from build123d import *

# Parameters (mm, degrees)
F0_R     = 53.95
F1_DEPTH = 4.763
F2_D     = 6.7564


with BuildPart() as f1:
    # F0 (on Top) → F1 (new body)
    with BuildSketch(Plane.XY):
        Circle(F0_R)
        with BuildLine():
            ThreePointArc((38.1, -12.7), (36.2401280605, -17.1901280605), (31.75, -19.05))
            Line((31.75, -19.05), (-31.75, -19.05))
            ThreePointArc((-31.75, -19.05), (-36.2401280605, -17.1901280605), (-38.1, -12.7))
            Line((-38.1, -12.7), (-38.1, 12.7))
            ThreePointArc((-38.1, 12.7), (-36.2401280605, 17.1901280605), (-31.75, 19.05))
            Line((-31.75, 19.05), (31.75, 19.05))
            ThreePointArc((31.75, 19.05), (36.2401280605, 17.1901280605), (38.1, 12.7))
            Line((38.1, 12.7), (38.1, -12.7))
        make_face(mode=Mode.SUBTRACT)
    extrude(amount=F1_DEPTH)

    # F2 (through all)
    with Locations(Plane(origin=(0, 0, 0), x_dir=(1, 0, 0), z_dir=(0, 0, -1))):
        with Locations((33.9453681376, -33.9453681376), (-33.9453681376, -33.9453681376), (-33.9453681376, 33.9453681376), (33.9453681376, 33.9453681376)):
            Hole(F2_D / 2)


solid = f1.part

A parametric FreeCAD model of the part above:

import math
import FreeCAD as App
import Part
import Sketcher
Q = App.Units.Quantity

doc = App.newDocument("Part")
params = doc.addObject("Spreadsheet::Sheet", "Params")
for row, (alias, value) in enumerate([
    ("sketch1_height", "1 in"),
    ("sketch1_radius", "0.25 in"),
    ("sketch1_width", "2.5 in"),
    ("pad1_length", "4.763 mm"),
    ("sketch2_diameter", "0.266 in"),
    ("hole_diameter", "0.266 in"),
], start=1):
    params.set(f"A{row}", alias)
    params.set(f"B{row}", "=" + value)
    params.setAlias(f"B{row}", alias)

body = doc.addObject("PartDesign::Body", "Body")

# Sketch on XY plane
sketch1 = body.newObject("Sketcher::SketchObject", "Sketch")
sketch1.AttachmentSupport = (doc.getObject("XY_Plane"), [""])
sketch1.MapMode = "FlatFace"
sketch1.addGeometry([
    Part.Circle(App.Vector(0, 0, 0), App.Vector(0, 0, 1), 54),  # 0
    Part.LineSegment(App.Vector(38, 13, 0), App.Vector(38, -13, 0)),  # 1
    Part.ArcOfCircle(Part.Circle(App.Vector(32, -13, 0), App.Vector(0, 0, 1), 6), math.radians(-90), math.radians(0)),  # 2
    Part.LineSegment(App.Vector(32, -19, 0), App.Vector(-32, -19, 0)),  # 3
    Part.ArcOfCircle(Part.Circle(App.Vector(-32, -13, 0), App.Vector(0, 0, 1), 6), math.radians(180), math.radians(270)),  # 4
    Part.LineSegment(App.Vector(-38, -13, 0), App.Vector(-38, 13, 0)),  # 5
    Part.ArcOfCircle(Part.Circle(App.Vector(-32, 13, 0), App.Vector(0, 0, 1), 6), math.radians(90), math.radians(180)),  # 6
    Part.LineSegment(App.Vector(-32, 19, 0), App.Vector(32, 19, 0)),  # 7
    Part.ArcOfCircle(Part.Circle(App.Vector(32, 13, 0), App.Vector(0, 0, 1), 6), math.radians(0), math.radians(90)),  # 8
], False)
sketch1.addConstraint([
    Sketcher.Constraint("Tangent", 1, 2, 2, 2),
    Sketcher.Constraint("Tangent", 2, 1, 3, 1),
    Sketcher.Constraint("Tangent", 3, 2, 4, 2),
    Sketcher.Constraint("Tangent", 4, 1, 5, 1),
    Sketcher.Constraint("Tangent", 5, 2, 6, 2),
    Sketcher.Constraint("Tangent", 6, 1, 7, 1),
    Sketcher.Constraint("Tangent", 7, 2, 8, 2),
    Sketcher.Constraint("Tangent", 8, 1, 1, 1),
    Sketcher.Constraint("Vertical", 1),
    Sketcher.Constraint("Horizontal", 3),
    Sketcher.Constraint("Vertical", 5),
    Sketcher.Constraint("Horizontal", 7),
    Sketcher.Constraint("Coincident", 0, 3, -1, 1),
    Sketcher.Constraint("Equal", 2, 4),
    Sketcher.Constraint("Equal", 4, 6),
    Sketcher.Constraint("Equal", 6, 8),
    Sketcher.Constraint("Symmetric", 2, 3, 6, 3, -1, 1),
    Sketcher.Constraint("DistanceY", 1, 2, 1, 1, Q("1 in")),
    Sketcher.Constraint("Radius", 2, Q("0.25 in")),
    Sketcher.Constraint("DistanceX", 3, 2, 3, 1, Q("2.5 in")),
    Sketcher.Constraint("Diameter", 0, 107.9),
])
sketch1.setExpression("Constraints[17]", "Params.sketch1_height")
sketch1.setExpression("Constraints[18]", "Params.sketch1_radius")
sketch1.setExpression("Constraints[19]", "Params.sketch1_width")
pad1 = body.newObject("PartDesign::Pad", "Pad")
pad1.Profile = sketch1
pad1.setExpression("Length", "Params.pad1_length")

# Sketch on XY plane
sketch2 = body.newObject("Sketcher::SketchObject", "Sketch001")
sketch2.AttachmentSupport = (doc.getObject("XY_Plane"), [""])
sketch2.MapMode = "FlatFace"
sketch2.addGeometry([
    Part.Circle(App.Vector(33.9, 33.9, 0), App.Vector(0, 0, 1), 3.4),
    Part.Circle(App.Vector(-33.9, 33.9, 0), App.Vector(0, 0, 1), 3.4),
    Part.Circle(App.Vector(-33.9, -33.9, 0), App.Vector(0, 0, 1), 3.4),
    Part.Circle(App.Vector(33.9, -33.9, 0), App.Vector(0, 0, 1), 3.4),
], False)
sketch2.addConstraint([
    Sketcher.Constraint("Equal", 0, 1),
    Sketcher.Constraint("Equal", 1, 2),
    Sketcher.Constraint("Equal", 2, 3),
    Sketcher.Constraint("Symmetric", 0, 3, 2, 3, -1, 1),
    Sketcher.Constraint("Symmetric", 1, 3, 3, 3, -1, 1),
    Sketcher.Constraint("Symmetric", 0, 3, 1, 3, -2),
    Sketcher.Constraint("Diameter", 0, Q("0.266 in")),
    Sketcher.Constraint("DistanceX", -1, 1, 0, 3, 33.945368),
    Sketcher.Constraint("DistanceY", -1, 1, 0, 3, 33.945368),
])
sketch2.setExpression("Constraints[6]", "Params.sketch2_diameter")
doc.recompute()
hole = body.newObject("PartDesign::Hole", "Hole")
hole.Profile = sketch2
hole.ThreadType = "None"
hole.setExpression("Diameter", "Params.hole_diameter")
hole.DepthType = "ThroughAll"
hole.Reversed = True

doc.recompute()
